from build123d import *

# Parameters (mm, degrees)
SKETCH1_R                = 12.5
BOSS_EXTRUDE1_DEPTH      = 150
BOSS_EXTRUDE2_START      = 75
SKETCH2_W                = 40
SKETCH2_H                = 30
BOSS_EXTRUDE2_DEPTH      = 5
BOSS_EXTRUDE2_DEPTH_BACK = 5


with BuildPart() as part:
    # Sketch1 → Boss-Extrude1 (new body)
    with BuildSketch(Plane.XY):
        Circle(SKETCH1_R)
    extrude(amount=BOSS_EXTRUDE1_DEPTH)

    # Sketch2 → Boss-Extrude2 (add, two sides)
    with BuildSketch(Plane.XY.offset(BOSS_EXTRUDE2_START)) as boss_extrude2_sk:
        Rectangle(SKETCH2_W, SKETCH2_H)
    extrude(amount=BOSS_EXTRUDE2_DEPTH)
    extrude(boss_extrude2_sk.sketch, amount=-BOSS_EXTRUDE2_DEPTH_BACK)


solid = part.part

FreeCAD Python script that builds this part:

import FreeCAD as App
import Part
import Sketcher
from FreeCAD import Vector
Q = App.Units.Quantity

doc = App.newDocument("Part")
body = doc.addObject("PartDesign::Body", "Body")

sketch1 = body.newObject("Sketcher::SketchObject", "Sketch")
sketch1.AttachmentSupport = (doc.getObject("XY_Plane"), [""])
sketch1.MapMode = "FlatFace"
sketch1.addGeometry(Part.Circle(Vector(0, 0, 0), Vector(0, 0, 1), 12.5), False)
sketch1.addConstraint(Sketcher.Constraint("Coincident", 0, 3, -1, 1))
sketch1.addConstraint(Sketcher.Constraint("Diameter", 0, Q("25 mm")))
pad1 = body.newObject("PartDesign::Pad", "Pad")
pad1.Profile = sketch1
pad1.Length = 150

sketch2 = body.newObject("Sketcher::SketchObject", "Sketch001")
sketch2.AttachmentSupport = (doc.getObject("XY_Plane"), [""])
sketch2.MapMode = "FlatFace"
sketch2.AttachmentOffset = App.Placement(Vector(0, 0, 75), App.Rotation())
sketch2.addGeometry(Part.LineSegment(Vector(-20, 15, 0), Vector(-20, -15, 0)), False)
sketch2.addGeometry(Part.LineSegment(Vector(-20, -15, 0), Vector(20, -15, 0)), False)
sketch2.addGeometry(Part.LineSegment(Vector(20, -15, 0), Vector(20, 15, 0)), False)
sketch2.addGeometry(Part.LineSegment(Vector(20, 15, 0), Vector(-20, 15, 0)), False)
sketch2.addConstraint(Sketcher.Constraint("Coincident", 0, 2, 1, 1))
sketch2.addConstraint(Sketcher.Constraint("Coincident", 1, 2, 2, 1))
sketch2.addConstraint(Sketcher.Constraint("Coincident", 2, 2, 3, 1))
sketch2.addConstraint(Sketcher.Constraint("Coincident", 3, 2, 0, 1))
sketch2.addConstraint(Sketcher.Constraint("Vertical", 0))
sketch2.addConstraint(Sketcher.Constraint("Horizontal", 1))
sketch2.addConstraint(Sketcher.Constraint("Vertical", 2))
sketch2.addConstraint(Sketcher.Constraint("Horizontal", 3))
sketch2.addConstraint(Sketcher.Constraint("Symmetric", 0, 2, 2, 2, -1, 1))
sketch2.addConstraint(Sketcher.Constraint("DistanceX", 1, 1, 1, 2, Q("40 mm")))
sketch2.addConstraint(Sketcher.Constraint("DistanceY", 0, 2, 0, 1, Q("30 mm")))
pad2 = body.newObject("PartDesign::Pad", "Pad001")
pad2.Profile = sketch2
pad2.Type = "TwoLengths"
pad2.Length = 5
pad2.Length2 = 5

doc.recompute()
